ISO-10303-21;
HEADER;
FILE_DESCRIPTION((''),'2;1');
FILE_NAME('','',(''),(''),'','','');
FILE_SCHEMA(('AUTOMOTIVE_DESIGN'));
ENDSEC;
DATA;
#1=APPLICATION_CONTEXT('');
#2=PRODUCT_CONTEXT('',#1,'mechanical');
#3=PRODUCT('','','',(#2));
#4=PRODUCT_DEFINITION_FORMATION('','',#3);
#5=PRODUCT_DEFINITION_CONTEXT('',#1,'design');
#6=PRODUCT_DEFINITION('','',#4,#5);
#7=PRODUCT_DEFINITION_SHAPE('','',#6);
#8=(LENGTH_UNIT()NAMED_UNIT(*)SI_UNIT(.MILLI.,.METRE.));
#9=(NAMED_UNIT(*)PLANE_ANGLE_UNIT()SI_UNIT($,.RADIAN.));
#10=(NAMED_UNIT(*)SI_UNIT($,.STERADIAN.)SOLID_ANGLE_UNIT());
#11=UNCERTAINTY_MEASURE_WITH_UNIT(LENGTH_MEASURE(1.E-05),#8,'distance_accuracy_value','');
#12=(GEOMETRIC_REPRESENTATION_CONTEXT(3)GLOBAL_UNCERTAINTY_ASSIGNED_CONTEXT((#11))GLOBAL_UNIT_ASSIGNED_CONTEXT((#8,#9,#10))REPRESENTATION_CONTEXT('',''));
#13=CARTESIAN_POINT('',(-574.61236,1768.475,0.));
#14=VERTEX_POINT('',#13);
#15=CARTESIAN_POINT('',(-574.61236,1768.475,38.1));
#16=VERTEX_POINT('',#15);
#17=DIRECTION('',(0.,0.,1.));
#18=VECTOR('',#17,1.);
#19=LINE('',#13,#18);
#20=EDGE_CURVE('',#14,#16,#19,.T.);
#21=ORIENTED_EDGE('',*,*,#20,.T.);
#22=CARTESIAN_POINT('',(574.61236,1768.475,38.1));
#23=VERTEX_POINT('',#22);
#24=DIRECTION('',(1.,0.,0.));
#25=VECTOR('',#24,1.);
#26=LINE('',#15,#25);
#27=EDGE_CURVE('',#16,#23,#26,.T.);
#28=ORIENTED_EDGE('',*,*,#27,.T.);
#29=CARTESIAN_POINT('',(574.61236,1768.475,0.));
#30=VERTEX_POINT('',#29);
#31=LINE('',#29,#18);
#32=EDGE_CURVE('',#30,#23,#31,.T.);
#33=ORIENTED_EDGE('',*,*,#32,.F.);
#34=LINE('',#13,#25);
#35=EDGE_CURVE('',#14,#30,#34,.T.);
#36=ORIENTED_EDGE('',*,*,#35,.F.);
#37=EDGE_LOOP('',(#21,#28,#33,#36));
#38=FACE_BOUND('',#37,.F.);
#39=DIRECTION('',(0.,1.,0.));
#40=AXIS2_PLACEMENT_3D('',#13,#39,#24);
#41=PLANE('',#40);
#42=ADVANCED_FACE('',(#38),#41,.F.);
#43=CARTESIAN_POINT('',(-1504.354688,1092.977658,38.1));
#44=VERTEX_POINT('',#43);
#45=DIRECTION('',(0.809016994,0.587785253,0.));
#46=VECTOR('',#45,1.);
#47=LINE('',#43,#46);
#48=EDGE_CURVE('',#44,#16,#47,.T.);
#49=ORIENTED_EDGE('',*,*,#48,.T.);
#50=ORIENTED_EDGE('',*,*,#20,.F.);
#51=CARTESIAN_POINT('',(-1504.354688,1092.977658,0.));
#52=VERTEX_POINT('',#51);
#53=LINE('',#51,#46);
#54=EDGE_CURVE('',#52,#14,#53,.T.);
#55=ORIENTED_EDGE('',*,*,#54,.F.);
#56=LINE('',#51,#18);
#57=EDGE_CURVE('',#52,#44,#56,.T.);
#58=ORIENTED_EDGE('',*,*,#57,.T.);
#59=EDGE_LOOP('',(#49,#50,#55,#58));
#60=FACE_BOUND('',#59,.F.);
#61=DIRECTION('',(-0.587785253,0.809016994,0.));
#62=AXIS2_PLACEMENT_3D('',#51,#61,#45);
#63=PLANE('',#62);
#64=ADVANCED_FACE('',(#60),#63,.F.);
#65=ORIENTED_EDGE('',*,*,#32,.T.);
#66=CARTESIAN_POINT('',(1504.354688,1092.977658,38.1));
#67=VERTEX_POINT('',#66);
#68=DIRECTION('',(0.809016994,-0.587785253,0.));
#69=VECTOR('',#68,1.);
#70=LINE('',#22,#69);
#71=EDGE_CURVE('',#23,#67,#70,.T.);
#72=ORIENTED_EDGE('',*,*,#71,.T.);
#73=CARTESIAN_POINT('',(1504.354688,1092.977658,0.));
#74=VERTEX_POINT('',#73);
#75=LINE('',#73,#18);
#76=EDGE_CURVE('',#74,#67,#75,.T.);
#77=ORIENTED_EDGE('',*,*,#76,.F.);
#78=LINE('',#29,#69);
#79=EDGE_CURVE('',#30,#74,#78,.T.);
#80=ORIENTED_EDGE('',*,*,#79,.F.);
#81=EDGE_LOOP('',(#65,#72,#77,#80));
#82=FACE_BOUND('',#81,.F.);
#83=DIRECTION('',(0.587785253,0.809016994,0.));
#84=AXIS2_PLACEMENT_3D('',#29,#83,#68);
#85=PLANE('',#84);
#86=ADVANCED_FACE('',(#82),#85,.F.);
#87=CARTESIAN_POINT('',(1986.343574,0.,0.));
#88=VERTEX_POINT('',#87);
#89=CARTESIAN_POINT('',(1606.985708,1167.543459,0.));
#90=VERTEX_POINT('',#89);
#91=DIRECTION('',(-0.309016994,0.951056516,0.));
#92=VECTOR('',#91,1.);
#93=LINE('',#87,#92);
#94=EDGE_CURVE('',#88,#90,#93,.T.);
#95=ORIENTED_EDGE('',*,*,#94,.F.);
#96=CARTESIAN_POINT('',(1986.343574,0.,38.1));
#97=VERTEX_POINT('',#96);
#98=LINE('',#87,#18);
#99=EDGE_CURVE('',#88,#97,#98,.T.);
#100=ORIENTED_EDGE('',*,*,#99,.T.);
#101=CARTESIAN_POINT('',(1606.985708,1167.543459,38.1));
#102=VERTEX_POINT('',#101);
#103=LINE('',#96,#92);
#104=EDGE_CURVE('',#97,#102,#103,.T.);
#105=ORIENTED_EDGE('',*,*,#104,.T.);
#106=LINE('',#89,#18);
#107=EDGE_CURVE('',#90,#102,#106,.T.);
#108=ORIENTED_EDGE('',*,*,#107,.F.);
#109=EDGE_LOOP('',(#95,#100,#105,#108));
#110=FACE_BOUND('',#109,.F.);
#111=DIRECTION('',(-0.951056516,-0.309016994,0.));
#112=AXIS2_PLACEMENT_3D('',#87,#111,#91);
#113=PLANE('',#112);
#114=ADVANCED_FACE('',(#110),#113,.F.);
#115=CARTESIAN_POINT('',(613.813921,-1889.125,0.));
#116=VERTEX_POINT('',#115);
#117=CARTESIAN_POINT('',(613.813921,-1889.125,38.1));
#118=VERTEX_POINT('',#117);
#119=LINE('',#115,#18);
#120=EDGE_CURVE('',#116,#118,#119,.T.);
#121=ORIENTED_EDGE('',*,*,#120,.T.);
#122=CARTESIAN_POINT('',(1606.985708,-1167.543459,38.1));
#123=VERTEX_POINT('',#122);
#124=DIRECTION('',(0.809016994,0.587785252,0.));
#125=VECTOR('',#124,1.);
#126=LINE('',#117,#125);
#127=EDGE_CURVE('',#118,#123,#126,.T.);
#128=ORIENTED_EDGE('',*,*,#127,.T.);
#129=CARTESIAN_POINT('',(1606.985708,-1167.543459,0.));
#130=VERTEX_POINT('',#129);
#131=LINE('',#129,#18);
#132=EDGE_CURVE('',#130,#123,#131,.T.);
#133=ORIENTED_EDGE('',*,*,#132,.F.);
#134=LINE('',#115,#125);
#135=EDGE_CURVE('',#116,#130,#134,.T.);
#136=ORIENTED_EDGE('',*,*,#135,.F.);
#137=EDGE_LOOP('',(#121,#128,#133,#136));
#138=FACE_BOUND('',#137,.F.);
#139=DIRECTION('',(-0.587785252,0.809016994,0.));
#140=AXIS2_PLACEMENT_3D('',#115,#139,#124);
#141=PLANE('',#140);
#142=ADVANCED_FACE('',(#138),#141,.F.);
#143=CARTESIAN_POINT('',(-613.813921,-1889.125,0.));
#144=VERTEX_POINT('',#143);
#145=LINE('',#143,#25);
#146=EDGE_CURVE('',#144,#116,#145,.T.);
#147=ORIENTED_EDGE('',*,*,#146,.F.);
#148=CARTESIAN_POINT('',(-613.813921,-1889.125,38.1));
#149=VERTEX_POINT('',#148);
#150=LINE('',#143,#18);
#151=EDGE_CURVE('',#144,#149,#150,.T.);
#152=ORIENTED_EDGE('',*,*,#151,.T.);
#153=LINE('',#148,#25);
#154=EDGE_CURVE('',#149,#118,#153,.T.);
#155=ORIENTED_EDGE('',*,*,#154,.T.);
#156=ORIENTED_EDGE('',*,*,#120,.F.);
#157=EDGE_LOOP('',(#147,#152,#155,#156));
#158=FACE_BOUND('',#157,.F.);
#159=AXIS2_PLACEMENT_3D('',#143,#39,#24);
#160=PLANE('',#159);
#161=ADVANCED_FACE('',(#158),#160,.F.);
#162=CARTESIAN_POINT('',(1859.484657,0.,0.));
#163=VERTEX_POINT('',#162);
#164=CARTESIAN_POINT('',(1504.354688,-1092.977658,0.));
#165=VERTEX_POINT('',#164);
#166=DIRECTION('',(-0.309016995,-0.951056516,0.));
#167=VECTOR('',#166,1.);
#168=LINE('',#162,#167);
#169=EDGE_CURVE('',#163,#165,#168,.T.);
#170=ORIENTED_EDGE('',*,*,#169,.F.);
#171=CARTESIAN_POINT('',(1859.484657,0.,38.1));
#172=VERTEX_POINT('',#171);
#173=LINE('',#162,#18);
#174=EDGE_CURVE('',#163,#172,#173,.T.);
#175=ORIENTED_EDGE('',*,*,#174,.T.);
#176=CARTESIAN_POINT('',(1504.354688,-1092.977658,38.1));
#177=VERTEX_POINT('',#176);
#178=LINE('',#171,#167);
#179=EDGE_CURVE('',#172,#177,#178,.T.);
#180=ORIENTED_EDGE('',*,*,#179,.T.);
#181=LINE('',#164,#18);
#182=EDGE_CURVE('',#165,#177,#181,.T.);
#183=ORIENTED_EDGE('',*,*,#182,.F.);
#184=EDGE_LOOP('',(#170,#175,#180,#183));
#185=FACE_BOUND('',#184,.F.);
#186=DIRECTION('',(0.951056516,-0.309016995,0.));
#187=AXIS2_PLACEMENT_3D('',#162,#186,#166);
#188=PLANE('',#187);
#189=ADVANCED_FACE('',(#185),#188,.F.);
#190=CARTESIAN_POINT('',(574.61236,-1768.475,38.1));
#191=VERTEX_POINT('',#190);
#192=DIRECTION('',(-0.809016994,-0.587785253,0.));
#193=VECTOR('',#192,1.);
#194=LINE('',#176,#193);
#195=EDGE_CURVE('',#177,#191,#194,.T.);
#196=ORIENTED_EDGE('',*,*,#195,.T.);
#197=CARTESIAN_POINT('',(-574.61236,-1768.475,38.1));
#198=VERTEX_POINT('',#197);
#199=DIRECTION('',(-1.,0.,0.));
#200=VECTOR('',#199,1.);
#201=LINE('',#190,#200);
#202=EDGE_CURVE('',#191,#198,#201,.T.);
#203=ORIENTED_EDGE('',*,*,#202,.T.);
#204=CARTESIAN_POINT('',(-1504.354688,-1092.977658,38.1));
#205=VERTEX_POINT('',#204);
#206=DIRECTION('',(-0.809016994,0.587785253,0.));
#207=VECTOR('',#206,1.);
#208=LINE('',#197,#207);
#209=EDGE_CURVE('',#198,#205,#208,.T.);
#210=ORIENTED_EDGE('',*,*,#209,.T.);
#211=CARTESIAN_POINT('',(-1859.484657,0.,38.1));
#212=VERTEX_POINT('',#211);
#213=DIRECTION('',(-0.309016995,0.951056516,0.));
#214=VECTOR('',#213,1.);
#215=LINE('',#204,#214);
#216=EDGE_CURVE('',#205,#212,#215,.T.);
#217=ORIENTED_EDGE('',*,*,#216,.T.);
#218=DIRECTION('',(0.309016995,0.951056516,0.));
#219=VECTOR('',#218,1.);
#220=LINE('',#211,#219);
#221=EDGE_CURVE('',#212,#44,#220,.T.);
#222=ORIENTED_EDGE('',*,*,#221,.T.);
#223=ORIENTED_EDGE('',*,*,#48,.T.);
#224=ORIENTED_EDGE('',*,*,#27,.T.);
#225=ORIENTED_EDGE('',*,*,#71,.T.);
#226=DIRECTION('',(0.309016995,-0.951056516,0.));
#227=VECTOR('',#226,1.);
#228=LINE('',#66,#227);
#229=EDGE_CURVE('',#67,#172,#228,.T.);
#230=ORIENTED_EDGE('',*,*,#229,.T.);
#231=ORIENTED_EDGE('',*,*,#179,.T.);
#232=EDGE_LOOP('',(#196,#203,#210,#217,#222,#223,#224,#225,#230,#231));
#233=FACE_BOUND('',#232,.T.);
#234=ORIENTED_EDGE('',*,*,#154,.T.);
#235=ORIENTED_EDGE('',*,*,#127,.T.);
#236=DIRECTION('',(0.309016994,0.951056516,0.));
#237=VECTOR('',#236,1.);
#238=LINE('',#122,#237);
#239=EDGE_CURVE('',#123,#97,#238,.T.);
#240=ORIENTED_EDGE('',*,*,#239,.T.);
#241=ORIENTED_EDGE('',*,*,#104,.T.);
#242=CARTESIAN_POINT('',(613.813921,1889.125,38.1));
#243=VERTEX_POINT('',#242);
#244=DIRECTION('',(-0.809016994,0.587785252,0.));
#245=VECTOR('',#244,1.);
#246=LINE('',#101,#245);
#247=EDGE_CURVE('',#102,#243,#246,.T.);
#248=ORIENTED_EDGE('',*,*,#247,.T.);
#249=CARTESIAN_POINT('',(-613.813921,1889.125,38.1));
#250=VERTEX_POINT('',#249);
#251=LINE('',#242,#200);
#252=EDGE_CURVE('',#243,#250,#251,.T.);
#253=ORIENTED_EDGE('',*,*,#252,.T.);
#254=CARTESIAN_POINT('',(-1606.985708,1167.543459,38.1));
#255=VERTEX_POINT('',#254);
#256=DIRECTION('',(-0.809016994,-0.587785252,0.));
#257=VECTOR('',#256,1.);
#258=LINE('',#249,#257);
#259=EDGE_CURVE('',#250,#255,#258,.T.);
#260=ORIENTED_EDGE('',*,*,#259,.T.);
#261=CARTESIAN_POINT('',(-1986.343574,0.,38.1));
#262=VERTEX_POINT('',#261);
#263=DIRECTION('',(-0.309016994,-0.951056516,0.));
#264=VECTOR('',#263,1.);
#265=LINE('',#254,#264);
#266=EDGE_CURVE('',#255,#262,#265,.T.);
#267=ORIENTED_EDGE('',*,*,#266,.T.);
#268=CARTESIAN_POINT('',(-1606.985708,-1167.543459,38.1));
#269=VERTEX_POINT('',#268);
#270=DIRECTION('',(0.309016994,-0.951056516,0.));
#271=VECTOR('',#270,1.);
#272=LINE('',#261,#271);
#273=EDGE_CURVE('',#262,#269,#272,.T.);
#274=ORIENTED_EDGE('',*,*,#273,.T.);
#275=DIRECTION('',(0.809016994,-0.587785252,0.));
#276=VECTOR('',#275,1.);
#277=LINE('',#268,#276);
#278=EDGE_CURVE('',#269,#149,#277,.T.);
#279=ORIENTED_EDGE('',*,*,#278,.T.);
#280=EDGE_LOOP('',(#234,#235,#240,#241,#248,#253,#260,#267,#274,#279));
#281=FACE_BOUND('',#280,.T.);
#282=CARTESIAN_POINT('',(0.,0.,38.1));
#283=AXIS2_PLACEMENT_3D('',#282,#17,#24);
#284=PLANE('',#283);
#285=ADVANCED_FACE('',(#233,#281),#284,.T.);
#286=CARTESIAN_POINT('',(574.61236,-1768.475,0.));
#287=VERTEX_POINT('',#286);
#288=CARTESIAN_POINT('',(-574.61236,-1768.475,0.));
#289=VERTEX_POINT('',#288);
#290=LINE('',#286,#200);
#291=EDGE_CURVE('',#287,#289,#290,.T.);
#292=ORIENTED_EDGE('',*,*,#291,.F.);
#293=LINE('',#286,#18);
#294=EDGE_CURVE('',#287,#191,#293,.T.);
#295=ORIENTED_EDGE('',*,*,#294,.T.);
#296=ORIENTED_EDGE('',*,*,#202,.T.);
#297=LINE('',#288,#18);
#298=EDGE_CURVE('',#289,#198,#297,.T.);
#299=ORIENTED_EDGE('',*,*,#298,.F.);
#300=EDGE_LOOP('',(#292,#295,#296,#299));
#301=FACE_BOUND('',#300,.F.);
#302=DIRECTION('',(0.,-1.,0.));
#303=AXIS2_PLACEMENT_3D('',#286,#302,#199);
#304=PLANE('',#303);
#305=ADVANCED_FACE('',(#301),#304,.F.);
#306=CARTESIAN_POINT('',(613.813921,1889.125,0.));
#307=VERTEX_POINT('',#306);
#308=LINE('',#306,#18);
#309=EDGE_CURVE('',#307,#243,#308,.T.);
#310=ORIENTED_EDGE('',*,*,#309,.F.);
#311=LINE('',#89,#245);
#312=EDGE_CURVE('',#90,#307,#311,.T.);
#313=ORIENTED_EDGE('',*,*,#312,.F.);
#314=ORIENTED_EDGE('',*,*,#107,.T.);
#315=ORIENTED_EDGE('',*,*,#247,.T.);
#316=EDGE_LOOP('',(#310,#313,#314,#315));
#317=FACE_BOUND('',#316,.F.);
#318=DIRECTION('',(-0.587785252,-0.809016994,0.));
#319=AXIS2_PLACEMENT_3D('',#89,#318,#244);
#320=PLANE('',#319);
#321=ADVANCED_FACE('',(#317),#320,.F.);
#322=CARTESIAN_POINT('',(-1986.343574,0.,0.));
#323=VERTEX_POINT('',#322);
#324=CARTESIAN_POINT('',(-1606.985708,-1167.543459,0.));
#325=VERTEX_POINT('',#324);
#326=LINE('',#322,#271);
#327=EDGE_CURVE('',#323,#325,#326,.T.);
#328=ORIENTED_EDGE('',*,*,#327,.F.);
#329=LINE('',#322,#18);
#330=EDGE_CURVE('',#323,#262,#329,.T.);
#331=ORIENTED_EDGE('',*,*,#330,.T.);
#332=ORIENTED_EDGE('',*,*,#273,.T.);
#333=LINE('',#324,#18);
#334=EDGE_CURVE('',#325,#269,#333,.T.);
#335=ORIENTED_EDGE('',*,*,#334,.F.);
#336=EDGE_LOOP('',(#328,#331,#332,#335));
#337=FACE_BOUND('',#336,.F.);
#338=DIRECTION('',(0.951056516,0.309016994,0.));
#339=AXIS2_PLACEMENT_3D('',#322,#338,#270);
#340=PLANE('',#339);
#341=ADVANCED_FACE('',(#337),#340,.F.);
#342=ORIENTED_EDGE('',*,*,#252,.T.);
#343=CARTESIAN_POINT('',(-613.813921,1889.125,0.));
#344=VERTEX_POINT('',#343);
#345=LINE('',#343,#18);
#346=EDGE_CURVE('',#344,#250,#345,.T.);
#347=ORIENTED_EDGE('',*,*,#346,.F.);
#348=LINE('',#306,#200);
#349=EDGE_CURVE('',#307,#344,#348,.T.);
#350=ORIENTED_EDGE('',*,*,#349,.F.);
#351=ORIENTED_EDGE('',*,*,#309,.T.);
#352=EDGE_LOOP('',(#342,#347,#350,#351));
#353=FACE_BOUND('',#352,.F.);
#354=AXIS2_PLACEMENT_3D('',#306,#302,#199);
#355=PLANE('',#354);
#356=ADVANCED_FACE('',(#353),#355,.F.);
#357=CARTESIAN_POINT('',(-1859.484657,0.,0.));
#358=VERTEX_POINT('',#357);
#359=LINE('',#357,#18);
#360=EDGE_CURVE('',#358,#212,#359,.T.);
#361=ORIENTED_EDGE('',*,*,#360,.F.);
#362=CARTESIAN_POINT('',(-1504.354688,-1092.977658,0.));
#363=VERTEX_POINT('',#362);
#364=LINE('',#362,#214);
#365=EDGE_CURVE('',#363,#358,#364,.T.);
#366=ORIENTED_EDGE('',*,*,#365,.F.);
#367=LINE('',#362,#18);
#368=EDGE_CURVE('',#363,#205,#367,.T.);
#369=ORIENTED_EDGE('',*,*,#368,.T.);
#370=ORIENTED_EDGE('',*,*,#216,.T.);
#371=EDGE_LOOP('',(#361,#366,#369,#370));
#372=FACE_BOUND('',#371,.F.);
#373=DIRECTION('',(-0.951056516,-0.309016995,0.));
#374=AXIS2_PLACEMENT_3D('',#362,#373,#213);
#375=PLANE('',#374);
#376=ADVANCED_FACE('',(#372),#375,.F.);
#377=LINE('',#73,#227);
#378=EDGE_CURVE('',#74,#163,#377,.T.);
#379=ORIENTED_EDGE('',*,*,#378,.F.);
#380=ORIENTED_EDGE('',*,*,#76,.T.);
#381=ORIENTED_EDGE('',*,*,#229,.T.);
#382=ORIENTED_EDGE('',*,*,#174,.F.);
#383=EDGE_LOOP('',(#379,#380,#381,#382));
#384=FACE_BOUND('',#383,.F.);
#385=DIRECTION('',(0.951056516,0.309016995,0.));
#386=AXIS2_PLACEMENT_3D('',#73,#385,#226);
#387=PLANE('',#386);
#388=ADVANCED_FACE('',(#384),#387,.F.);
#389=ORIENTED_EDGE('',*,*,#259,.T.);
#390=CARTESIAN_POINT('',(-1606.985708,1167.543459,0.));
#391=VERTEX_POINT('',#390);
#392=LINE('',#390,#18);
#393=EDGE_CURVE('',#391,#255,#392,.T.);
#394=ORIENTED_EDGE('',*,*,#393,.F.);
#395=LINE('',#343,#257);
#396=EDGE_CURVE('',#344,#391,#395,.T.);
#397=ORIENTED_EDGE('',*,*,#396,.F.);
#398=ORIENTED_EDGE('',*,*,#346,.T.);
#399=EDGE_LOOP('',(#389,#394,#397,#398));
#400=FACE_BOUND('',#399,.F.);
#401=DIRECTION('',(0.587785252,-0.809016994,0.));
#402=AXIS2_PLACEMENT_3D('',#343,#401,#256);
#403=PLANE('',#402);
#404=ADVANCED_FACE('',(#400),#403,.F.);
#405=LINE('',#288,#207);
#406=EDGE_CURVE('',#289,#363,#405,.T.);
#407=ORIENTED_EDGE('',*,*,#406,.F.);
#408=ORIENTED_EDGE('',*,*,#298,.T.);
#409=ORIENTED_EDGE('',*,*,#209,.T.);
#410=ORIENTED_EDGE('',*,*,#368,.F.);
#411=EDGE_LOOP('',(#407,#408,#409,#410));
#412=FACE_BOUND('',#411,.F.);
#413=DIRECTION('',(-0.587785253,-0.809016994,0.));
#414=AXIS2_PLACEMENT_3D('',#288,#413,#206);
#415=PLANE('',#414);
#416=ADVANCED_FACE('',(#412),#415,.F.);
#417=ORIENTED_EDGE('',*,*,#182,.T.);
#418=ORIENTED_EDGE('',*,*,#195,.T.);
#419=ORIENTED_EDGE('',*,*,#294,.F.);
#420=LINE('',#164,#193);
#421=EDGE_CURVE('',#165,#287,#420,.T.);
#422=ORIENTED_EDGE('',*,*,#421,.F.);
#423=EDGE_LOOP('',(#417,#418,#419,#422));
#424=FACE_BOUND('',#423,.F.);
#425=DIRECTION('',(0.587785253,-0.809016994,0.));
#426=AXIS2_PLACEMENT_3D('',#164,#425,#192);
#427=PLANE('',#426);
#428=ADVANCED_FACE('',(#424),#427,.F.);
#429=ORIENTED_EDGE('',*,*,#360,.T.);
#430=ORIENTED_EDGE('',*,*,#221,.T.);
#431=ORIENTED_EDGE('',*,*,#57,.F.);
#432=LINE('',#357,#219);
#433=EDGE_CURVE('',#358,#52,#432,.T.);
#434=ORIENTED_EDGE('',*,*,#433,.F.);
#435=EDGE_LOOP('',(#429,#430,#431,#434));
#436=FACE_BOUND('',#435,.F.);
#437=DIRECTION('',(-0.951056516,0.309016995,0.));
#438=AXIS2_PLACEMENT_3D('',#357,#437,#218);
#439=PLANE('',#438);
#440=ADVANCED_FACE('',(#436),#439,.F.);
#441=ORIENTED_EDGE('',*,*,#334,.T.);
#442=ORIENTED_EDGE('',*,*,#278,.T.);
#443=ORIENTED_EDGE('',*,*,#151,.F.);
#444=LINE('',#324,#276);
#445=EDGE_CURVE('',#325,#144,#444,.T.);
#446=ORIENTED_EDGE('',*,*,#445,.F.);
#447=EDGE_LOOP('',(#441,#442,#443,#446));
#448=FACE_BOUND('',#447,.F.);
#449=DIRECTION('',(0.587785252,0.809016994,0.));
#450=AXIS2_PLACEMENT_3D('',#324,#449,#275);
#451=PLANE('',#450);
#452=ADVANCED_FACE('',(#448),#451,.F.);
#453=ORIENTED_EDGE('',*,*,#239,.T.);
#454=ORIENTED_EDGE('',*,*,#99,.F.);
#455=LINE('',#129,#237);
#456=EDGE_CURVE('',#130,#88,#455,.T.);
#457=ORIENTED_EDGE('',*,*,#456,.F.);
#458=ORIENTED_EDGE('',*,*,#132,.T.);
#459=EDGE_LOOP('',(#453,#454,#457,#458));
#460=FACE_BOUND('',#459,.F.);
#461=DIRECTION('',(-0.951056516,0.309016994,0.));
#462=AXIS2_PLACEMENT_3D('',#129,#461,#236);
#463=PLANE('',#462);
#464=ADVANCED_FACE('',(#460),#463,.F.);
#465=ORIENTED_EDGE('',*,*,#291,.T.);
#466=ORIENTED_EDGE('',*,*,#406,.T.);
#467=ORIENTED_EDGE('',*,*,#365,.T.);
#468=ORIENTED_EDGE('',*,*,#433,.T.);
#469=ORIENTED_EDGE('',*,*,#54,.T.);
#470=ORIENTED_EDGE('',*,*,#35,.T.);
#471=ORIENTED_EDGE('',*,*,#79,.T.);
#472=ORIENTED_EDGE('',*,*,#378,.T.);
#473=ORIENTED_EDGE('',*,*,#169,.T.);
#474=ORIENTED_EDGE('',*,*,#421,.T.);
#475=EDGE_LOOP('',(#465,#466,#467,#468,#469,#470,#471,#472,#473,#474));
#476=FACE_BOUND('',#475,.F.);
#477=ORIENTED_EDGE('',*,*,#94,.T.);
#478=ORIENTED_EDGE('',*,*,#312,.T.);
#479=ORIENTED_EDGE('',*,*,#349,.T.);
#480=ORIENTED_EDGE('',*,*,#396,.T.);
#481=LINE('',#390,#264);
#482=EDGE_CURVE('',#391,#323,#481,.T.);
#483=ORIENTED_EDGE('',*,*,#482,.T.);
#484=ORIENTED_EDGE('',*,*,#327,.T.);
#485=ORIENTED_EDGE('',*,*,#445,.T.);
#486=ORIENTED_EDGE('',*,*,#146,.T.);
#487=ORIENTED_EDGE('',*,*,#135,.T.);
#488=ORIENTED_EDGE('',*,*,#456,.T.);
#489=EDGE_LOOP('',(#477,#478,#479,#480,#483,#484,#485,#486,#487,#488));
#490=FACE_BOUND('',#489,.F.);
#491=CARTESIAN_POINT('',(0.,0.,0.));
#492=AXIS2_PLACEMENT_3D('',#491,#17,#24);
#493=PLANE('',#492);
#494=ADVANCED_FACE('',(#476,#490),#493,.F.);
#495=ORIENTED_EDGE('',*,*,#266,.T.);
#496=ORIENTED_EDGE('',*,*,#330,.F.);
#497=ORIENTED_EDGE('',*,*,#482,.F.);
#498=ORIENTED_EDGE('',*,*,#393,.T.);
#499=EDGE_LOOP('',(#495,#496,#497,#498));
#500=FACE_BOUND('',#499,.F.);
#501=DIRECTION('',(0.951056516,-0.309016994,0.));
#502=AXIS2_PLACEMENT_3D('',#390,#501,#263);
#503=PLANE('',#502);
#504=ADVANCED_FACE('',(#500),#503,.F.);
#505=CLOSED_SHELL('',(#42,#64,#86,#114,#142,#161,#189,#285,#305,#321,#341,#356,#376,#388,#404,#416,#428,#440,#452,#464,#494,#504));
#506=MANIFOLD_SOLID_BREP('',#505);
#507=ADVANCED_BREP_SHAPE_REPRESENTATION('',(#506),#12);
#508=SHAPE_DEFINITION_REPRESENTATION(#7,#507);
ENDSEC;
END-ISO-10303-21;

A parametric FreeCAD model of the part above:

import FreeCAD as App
import Part
import Sketcher
from FreeCAD import Vector
Q = App.Units.Quantity


def add_polygon(sketch, points):
    """Adds a closed chain of lines whose ends are joined by coincident constraints."""
    first, n = sketch.GeometryCount, len(points)
    for a, b in zip(points, points[1:] + points[:1]):
        sketch.addGeometry(Part.LineSegment(App.Vector(*a, 0), App.Vector(*b, 0)), False)
    for i in range(n):
        sketch.addConstraint(Sketcher.Constraint("Coincident", first + i, 2, first + (i + 1) % n, 1))

doc = App.newDocument("Part")
body = doc.addObject("PartDesign::Body", "Body")

# Sketch on XY plane
sketch1 = body.newObject("Sketcher::SketchObject", "Sketch")
sketch1.AttachmentSupport = (doc.getObject("XY_Plane"), [""])
sketch1.MapMode = "FlatFace"
add_polygon(sketch1, [(613.813921, 1889.125), (-613.813921, 1889.125), (-1606.985708, 1167.543459), (-1986.343574, 0), (-1606.985708, -1167.543459), (-613.813921, -1889.125), (613.813921, -1889.125), (1606.985708, -1167.543459), (1986.343574, 0), (1606.985708, 1167.543459)])  # lines 0-9
add_polygon(sketch1, [(-1859.484657, 0), (-1504.354688, 1092.977658), (-574.61236, 1768.475), (574.61236, 1768.475), (1504.354688, 1092.977658), (1859.484657, 0), (1504.354688, -1092.977658), (574.61236, -1768.475), (-574.61236, -1768.475), (-1504.354688, -1092.977658)])  # lines 10-19
sketch1.addConstraint([
    Sketcher.Constraint("Horizontal", 0),
    Sketcher.Constraint("Horizontal", 5),
    Sketcher.Constraint("Horizontal", 12),
    Sketcher.Constraint("Horizontal", 17),
    Sketcher.Constraint("Symmetric", 0, 2, 5, 2, -1, 1),
    Sketcher.Constraint("Symmetric", 1, 2, 6, 2, -1, 1),
    Sketcher.Constraint("Symmetric", 2, 2, 7, 2, -1, 1),
    Sketcher.Constraint("Symmetric", 3, 2, 8, 2, -1, 1),
    Sketcher.Constraint("Symmetric", 10, 2, 15, 2, -1, 1),
    Sketcher.Constraint("Symmetric", 11, 2, 16, 2, -1, 1),
    Sketcher.Constraint("Symmetric", 13, 2, 18, 2, -1, 1),
    Sketcher.Constraint("Symmetric", 14, 2, 19, 2, -1, 1),
    Sketcher.Constraint("Symmetric", 3, 2, 6, 2, -2),
    Sketcher.Constraint("Symmetric", 10, 2, 13, 2, -2),
    Sketcher.Constraint("PointOnObject", 2, 2, -1),
    Sketcher.Constraint("PointOnObject", 14, 2, -1),
    Sketcher.Constraint("Parallel", 4, 9),
    Sketcher.Constraint("Parallel", 7, 10),
    Sketcher.Constraint("Parallel", 6, 11),
    Sketcher.Constraint("Parallel", 9, 13),
    Sketcher.Constraint("Parallel", 13, 18),
    Sketcher.Constraint("Vertical", 0, 2, 4, 2),
    Sketcher.Constraint("Equal", 1, 2),
    Sketcher.Constraint("Equal", 10, 11),
    Sketcher.Constraint("Angle", 1, Q("-144 deg")),
    Sketcher.Constraint("Angle", 2, Q("-108 deg")),
    Sketcher.Constraint("DistanceY", 4, 2, 0, 2, Q("148.75 in")),
    Sketcher.Constraint("DistanceY", 11, 2, 0, 2, Q("4.75 in")),
    Sketcher.Constraint("DistanceX", 0, 2, 0, 1, 1227.627842),
    Sketcher.Constraint("DistanceX", 12, 1, 12, 2, 1149.22472),
])
pad1 = body.newObject("PartDesign::Pad", "Pad")
pad1.Profile = sketch1
pad1.Length = Q("1.5 in")

doc.recompute()
